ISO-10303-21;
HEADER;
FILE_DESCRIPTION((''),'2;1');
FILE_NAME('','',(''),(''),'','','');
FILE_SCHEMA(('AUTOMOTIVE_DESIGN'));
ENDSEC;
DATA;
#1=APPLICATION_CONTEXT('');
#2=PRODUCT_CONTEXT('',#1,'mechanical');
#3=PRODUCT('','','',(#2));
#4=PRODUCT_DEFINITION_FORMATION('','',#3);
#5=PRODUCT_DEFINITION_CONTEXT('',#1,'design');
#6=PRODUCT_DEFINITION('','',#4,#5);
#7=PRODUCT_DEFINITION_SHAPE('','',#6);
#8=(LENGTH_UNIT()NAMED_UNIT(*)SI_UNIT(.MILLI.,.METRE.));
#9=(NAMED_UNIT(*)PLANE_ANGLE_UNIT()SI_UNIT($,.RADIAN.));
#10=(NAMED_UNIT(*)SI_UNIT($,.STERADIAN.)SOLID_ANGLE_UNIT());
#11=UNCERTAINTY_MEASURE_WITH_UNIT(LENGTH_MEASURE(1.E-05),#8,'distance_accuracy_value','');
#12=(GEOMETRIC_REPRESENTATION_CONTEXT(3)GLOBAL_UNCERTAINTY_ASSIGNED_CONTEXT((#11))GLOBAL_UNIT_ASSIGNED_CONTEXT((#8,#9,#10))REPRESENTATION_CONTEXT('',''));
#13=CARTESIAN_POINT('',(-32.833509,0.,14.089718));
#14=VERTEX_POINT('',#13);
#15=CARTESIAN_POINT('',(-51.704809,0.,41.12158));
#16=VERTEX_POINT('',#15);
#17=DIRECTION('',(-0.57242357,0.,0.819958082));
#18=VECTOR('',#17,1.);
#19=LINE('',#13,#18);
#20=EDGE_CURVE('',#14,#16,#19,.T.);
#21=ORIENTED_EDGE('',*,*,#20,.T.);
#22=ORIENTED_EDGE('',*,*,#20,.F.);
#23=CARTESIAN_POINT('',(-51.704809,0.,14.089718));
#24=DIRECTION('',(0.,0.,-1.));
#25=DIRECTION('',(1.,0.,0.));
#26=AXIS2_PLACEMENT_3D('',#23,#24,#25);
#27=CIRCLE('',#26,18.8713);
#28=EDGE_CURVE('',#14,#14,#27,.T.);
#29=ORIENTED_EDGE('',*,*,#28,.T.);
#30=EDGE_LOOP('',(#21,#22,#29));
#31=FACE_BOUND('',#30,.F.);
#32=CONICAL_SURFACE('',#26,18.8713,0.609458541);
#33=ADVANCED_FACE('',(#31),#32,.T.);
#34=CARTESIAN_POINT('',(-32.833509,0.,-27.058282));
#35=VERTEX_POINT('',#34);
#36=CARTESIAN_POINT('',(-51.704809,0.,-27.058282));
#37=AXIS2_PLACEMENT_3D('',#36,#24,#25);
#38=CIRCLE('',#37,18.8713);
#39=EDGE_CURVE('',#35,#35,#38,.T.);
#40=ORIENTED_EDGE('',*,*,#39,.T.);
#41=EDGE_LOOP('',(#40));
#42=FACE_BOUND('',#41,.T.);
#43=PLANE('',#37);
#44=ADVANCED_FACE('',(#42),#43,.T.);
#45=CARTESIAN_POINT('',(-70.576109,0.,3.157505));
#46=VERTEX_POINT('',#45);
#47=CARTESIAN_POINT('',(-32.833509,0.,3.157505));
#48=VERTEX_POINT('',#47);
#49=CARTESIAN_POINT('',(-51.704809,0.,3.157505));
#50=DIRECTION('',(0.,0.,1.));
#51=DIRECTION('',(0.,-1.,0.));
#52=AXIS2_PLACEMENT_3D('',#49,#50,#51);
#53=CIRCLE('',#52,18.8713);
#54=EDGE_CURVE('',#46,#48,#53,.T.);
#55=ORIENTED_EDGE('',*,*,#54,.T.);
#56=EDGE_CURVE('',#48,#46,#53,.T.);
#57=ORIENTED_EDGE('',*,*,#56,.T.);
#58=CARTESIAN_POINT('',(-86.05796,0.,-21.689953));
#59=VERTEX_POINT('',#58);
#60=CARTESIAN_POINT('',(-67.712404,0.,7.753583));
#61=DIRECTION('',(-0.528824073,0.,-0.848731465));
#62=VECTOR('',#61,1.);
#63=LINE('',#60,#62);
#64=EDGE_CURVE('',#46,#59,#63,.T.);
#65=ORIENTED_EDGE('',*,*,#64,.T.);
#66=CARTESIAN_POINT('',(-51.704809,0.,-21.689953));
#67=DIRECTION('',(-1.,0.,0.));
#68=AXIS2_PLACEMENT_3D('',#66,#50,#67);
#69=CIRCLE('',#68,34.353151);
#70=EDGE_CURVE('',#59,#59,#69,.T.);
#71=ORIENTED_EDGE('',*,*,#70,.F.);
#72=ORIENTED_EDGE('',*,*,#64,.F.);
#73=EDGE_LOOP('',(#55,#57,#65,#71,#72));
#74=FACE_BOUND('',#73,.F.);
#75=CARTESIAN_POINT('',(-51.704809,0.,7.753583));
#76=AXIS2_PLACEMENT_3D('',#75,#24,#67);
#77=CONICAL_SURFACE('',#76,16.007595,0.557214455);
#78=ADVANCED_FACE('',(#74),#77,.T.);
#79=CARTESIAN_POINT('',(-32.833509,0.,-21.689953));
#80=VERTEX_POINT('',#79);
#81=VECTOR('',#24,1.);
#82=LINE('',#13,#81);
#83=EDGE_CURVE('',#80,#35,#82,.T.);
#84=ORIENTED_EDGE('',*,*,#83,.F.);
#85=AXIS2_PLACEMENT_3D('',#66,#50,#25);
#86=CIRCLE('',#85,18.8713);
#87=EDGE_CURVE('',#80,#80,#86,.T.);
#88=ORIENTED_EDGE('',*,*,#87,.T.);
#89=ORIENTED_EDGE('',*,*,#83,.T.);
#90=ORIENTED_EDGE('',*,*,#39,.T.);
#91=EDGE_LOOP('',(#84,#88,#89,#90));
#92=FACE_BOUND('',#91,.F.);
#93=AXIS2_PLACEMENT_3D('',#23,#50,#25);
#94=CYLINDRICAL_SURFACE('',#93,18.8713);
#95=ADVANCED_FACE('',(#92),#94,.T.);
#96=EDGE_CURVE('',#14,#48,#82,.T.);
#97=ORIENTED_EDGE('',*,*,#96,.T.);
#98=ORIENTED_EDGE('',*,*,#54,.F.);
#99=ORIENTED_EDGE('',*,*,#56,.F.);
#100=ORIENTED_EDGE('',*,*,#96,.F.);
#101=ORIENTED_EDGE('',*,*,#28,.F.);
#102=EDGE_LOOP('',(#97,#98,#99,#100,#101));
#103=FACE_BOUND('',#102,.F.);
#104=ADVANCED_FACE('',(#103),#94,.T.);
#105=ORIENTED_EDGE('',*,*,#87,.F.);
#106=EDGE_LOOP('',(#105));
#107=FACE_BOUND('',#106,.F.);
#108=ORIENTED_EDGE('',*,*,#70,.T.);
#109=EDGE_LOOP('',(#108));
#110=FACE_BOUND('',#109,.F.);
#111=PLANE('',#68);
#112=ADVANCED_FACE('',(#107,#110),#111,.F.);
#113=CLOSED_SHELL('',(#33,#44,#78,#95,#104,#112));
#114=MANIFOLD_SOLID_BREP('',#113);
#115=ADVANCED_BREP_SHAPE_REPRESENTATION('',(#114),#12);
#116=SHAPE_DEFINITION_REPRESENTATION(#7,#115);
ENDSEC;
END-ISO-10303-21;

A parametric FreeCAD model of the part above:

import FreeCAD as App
import Part
import Sketcher
Q = App.Units.Quantity


def add_polygon(sketch, points):
    """Adds a closed chain of lines whose ends are joined by coincident constraints."""
    first, n = sketch.GeometryCount, len(points)
    for a, b in zip(points, points[1:] + points[:1]):
        sketch.addGeometry(Part.LineSegment(App.Vector(*a, 0), App.Vector(*b, 0)), False)
    for i in range(n):
        sketch.addConstraint(Sketcher.Constraint("Coincident", first + i, 2, first + (i + 1) % n, 1))

doc = App.newDocument("Part")
body = doc.addObject("PartDesign::Body", "Body")

# Sketch on XZ plane
sketch1 = body.newObject("Sketcher::SketchObject", "Sketch")
sketch1.AttachmentSupport = (doc.getObject("XZ_Plane"), [""])
sketch1.MapMode = "FlatFace"
add_polygon(sketch1, [(-33, 14), (-52, 41), (-52, 14)])  # lines 0-2
sketch1.addGeometry(Part.LineSegment(App.Vector(-52, 41, 0), App.Vector(-52, 14, 0)), True)  # axis
sketch1.addConstraint(Sketcher.Constraint("Vertical", 1))
sketch1.addConstraint(Sketcher.Constraint("Horizontal", 2))
sketch1.addConstraint(Sketcher.Constraint("Vertical", 3))
sketch1.addConstraint(Sketcher.Constraint("Coincident", 3, 1, 0, 2))
sketch1.addConstraint(Sketcher.Constraint("Horizontal", 2, 2, 3, 2))
sketch1.addConstraint(Sketcher.Constraint("DistanceX", 2, 1, 2, 2, 18.8713))
sketch1.addConstraint(Sketcher.Constraint("Distance", 0, 32.967371))
sketch1.addConstraint(Sketcher.Constraint("DistanceX", 0, 2, -1, 1, 51.704809))
sketch1.addConstraint(Sketcher.Constraint("DistanceY", -1, 1, 0, 2, 41.12158))
revolution = body.newObject("PartDesign::Revolution", "Revolution")
revolution.Profile = sketch1
revolution.ReferenceAxis = (sketch1, ["Axis0"])
revolution.Angle = 360

# Sketch on XY plane
sketch2 = body.newObject("Sketcher::SketchObject", "Sketch001")
sketch2.AttachmentSupport = (doc.getObject("XY_Plane"), [""])
sketch2.MapMode = "FlatFace"
sketch2.AttachmentOffset = App.Placement(App.Vector(0, 0, 14.089718), App.Rotation())
sketch2.addGeometry(Part.Circle(App.Vector(-52, 0, 0), App.Vector(0, 0, 1), 19), False)
sketch2.addConstraint(Sketcher.Constraint("PointOnObject", 0, 3, -1))
sketch2.addConstraint(Sketcher.Constraint("Diameter", 0, 37.7426))
sketch2.addConstraint(Sketcher.Constraint("DistanceX", 0, 3, -1, 1, 51.704809))
pad1 = body.newObject("PartDesign::Pad", "Pad")
pad1.Profile = sketch2
pad1.Length = Q("1.62 in")
pad1.Reversed = True

# Sketch on XZ plane
sketch3 = body.newObject("Sketcher::SketchObject", "Sketch002")
sketch3.AttachmentSupport = (doc.getObject("XZ_Plane"), [""])
sketch3.MapMode = "FlatFace"
add_polygon(sketch3, [(-67.939401, -21.689953), (-67.712404, 7.753583), (-86.05796, -21.689953)])  # lines 0-2
sketch3.addGeometry(Part.LineSegment(App.Vector(-51.704809, -21.689953, 0), App.Vector(-51.704809, 7.753583, 0)), True)  # axis
sketch3.addConstraint(Sketcher.Constraint("Horizontal", 2))
sketch3.addConstraint(Sketcher.Constraint("Vertical", 3))
sketch3.addConstraint(Sketcher.Constraint("Horizontal", 2, 2, 3, 1))
sketch3.addConstraint(Sketcher.Constraint("Horizontal", 0, 2, 3, 2))
sketch3.addConstraint(Sketcher.Constraint("DistanceX", 2, 1, 2, 2, 18.118559))
sketch3.addConstraint(Sketcher.Constraint("DistanceX", 2, 2, -1, 1, 67.939401))
sketch3.addConstraint(Sketcher.Constraint("Distance", 0, 29.444411))
sketch3.addConstraint(Sketcher.Constraint("DistanceY", 3, 1, 3, 2, 29.443536))
sketch3.addConstraint(Sketcher.Constraint("DistanceX", 3, 1, -1, 1, 51.704809))
sketch3.addConstraint(Sketcher.Constraint("DistanceY", -1, 1, 0, 2, 7.753583))
revolution2 = body.newObject("PartDesign::Revolution", "Revolution001")
revolution2.Profile = sketch3
revolution2.ReferenceAxis = (sketch3, ["Axis0"])
revolution2.Angle = 360

doc.recompute()
